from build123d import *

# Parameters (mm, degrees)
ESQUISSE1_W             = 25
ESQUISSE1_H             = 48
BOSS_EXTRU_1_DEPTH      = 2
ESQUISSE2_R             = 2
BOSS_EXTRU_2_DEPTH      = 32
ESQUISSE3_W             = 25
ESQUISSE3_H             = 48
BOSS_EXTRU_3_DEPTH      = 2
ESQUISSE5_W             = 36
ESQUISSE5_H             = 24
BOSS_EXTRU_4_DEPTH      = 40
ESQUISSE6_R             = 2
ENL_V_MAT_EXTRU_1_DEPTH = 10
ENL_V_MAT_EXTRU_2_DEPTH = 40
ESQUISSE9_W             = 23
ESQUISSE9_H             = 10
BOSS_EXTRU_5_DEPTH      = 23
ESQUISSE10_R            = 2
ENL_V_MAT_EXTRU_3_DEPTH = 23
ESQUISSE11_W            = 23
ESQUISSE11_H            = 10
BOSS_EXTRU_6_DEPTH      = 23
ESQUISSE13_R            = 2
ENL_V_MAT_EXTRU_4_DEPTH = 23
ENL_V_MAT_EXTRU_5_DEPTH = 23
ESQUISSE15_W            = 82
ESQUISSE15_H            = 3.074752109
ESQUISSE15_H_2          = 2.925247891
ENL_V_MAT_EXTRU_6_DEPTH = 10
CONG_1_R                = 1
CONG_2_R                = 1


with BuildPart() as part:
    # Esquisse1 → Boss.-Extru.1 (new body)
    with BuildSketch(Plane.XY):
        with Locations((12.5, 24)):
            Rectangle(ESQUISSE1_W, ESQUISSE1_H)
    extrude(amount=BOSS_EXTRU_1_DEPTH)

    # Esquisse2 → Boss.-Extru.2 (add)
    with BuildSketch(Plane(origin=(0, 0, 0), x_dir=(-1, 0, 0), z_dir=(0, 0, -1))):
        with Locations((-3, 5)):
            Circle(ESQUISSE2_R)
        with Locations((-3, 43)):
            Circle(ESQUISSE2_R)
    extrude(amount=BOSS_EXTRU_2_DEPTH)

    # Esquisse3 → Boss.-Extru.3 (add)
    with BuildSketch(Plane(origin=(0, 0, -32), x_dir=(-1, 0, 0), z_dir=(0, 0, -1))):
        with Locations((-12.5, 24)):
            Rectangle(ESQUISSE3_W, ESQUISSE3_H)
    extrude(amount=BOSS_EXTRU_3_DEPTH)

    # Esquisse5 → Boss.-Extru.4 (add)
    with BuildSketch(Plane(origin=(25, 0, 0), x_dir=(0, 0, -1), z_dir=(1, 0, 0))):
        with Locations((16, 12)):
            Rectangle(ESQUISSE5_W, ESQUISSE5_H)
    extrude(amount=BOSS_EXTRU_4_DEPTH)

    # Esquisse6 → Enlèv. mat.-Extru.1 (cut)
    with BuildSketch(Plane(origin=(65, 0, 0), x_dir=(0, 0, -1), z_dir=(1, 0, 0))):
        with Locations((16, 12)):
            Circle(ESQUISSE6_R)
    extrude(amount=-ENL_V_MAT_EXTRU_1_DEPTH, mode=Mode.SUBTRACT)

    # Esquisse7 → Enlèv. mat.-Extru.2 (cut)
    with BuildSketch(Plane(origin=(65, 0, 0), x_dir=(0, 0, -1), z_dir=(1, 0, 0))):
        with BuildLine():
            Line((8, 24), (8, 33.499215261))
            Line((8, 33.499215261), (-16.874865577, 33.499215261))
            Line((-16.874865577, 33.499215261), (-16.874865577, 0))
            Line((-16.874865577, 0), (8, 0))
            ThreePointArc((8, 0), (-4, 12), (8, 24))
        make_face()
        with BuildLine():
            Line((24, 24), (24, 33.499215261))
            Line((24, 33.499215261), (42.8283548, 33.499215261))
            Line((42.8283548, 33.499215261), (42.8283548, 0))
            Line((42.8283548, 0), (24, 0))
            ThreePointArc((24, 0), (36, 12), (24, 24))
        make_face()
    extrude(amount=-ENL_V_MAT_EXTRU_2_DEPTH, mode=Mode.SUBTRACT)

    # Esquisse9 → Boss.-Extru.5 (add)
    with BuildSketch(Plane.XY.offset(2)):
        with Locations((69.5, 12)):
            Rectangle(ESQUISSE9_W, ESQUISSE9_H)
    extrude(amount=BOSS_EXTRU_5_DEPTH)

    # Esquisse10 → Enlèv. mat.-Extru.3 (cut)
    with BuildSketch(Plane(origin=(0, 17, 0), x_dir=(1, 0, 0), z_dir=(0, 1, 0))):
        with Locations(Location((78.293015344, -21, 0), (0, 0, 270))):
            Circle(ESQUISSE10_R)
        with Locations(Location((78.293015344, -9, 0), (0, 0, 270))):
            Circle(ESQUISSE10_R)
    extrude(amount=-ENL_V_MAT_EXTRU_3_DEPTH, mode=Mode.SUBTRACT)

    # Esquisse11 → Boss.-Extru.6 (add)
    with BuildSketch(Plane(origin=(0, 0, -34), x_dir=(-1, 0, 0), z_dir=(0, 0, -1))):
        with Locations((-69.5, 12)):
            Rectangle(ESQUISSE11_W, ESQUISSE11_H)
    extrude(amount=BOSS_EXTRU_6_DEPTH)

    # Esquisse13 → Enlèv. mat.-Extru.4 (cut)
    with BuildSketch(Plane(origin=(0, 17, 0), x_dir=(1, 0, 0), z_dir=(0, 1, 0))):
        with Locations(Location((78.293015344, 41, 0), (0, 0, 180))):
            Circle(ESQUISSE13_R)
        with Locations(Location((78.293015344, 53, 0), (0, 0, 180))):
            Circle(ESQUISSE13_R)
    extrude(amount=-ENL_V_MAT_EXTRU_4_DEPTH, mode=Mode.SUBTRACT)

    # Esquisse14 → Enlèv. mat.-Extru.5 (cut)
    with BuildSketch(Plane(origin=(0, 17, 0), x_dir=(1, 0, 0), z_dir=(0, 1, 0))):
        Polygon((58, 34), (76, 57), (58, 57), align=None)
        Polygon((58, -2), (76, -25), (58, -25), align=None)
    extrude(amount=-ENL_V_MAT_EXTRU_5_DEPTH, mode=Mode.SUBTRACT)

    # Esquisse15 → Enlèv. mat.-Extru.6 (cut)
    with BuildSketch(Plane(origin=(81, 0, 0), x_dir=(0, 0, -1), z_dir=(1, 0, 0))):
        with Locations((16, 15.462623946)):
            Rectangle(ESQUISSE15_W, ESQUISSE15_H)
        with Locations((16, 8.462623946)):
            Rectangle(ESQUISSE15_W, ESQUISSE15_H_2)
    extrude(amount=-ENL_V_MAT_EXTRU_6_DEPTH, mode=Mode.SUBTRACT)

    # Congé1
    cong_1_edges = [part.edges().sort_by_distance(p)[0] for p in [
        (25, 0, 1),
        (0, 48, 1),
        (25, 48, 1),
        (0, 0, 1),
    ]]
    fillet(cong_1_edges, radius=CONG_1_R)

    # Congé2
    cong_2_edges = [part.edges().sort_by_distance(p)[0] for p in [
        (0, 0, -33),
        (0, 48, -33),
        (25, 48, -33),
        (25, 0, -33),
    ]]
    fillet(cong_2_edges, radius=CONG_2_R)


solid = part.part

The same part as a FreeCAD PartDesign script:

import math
import FreeCAD as App
import Part
import Sketcher
from FreeCAD import Vector
Q = App.Units.Quantity


def edges_at(feature, points):
    """Names of the edges that pass closest to the given points."""
    edges = feature.Shape.Edges
    near = lambda p: min(range(len(edges)), key=lambda i: edges[i].distToShape(Part.Vertex(*p))[0])
    return sorted({f"Edge{near(p) + 1}" for p in points})

doc = App.newDocument("Part")
body = doc.addObject("PartDesign::Body", "Body")

# Sketch on XY plane
sketch1 = body.newObject("Sketcher::SketchObject", "Sketch")
sketch1.AttachmentSupport = (doc.getObject("XY_Plane"), [""])
sketch1.MapMode = "FlatFace"
sketch1.addGeometry([
    Part.LineSegment(Vector(0, 48, 0), Vector(0, 0, 0)),
    Part.LineSegment(Vector(0, 0, 0), Vector(25, 0, 0)),
    Part.LineSegment(Vector(25, 0, 0), Vector(25, 48, 0)),
    Part.LineSegment(Vector(25, 48, 0), Vector(0, 48, 0)),
], False)
sketch1.addConstraint([
    Sketcher.Constraint("Coincident", 0, 2, 1, 1),
    Sketcher.Constraint("Coincident", 1, 2, 2, 1),
    Sketcher.Constraint("Coincident", 2, 2, 3, 1),
    Sketcher.Constraint("Coincident", 3, 2, 0, 1),
    Sketcher.Constraint("Vertical", 0),
    Sketcher.Constraint("Horizontal", 1),
    Sketcher.Constraint("Vertical", 2),
    Sketcher.Constraint("Horizontal", 3),
    Sketcher.Constraint("Coincident", 0, 2, -1, 1),
    Sketcher.Constraint("DistanceX", 1, 1, 1, 2, Q("25 mm")),
    Sketcher.Constraint("DistanceY", 0, 2, 0, 1, Q("48 mm")),
])
pad1 = body.newObject("PartDesign::Pad", "Pad")
pad1.Profile = sketch1
pad1.Length = 2

# Sketch on XY plane
sketch2 = body.newObject("Sketcher::SketchObject", "Sketch001")
sketch2.AttachmentSupport = (doc.getObject("XY_Plane"), [""])
sketch2.MapMode = "FlatFace"
sketch2.addGeometry([
    Part.Circle(Vector(3, 5, 0), Vector(0, 0, 1), 2),
    Part.Circle(Vector(3, 43, 0), Vector(0, 0, 1), 2),
], False)
sketch2.addConstraint([
    Sketcher.Constraint("Equal", 0, 1),
    Sketcher.Constraint("Vertical", 0, 3, 1, 3),
    Sketcher.Constraint("Diameter", 0, Q("4 mm")),
    Sketcher.Constraint("DistanceX", -1, 1, 0, 3, Q("3 mm")),
    Sketcher.Constraint("DistanceY", -1, 1, 0, 3, Q("5 mm")),
    Sketcher.Constraint("DistanceY", -1, 1, 1, 3, Q("43 mm")),
])
pad2 = body.newObject("PartDesign::Pad", "Pad001")
pad2.Profile = sketch2
pad2.Length = 32
pad2.Reversed = True

# Sketch on XY plane
sketch3 = body.newObject("Sketcher::SketchObject", "Sketch002")
sketch3.AttachmentSupport = (doc.getObject("XY_Plane"), [""])
sketch3.MapMode = "FlatFace"
sketch3.AttachmentOffset = App.Placement(Vector(0, 0, -32), App.Rotation())
sketch3.addGeometry([
    Part.LineSegment(Vector(25, 48, 0), Vector(25, 0, 0)),
    Part.LineSegment(Vector(25, 0, 0), Vector(0, 0, 0)),
    Part.LineSegment(Vector(0, 0, 0), Vector(0, 48, 0)),
    Part.LineSegment(Vector(0, 48, 0), Vector(25, 48, 0)),
], False)
sketch3.addConstraint([
    Sketcher.Constraint("Coincident", 0, 2, 1, 1),
    Sketcher.Constraint("Coincident", 1, 2, 2, 1),
    Sketcher.Constraint("Coincident", 2, 2, 3, 1),
    Sketcher.Constraint("Coincident", 3, 2, 0, 1),
    Sketcher.Constraint("Vertical", 0),
    Sketcher.Constraint("Horizontal", 1),
    Sketcher.Constraint("Vertical", 2),
    Sketcher.Constraint("Horizontal", 3),
    Sketcher.Constraint("Coincident", 1, 2, -1, 1),
    Sketcher.Constraint("DistanceX", 1, 2, 1, 1, Q("25 mm")),
    Sketcher.Constraint("DistanceY", 0, 2, 0, 1, Q("48 mm")),
])
pad3 = body.newObject("PartDesign::Pad", "Pad002")
pad3.Profile = sketch3
pad3.Length = 2
pad3.Reversed = True

# Sketch on YZ plane
sketch4 = body.newObject("Sketcher::SketchObject", "Sketch003")
sketch4.AttachmentSupport = (doc.getObject("YZ_Plane"), [""])
sketch4.MapMode = "FlatFace"
sketch4.AttachmentOffset = App.Placement(Vector(0, 0, 25), App.Rotation())
sketch4.addGeometry([
    Part.LineSegment(Vector(24, 2, 0), Vector(0, 2, 0)),
    Part.LineSegment(Vector(0, 2, 0), Vector(0, -34, 0)),
    Part.LineSegment(Vector(0, -34, 0), Vector(24, -34, 0)),
    Part.LineSegment(Vector(24, -34, 0), Vector(24, 2, 0)),
], False)
sketch4.addConstraint([
    Sketcher.Constraint("Coincident", 0, 2, 1, 1),
    Sketcher.Constraint("Coincident", 1, 2, 2, 1),
    Sketcher.Constraint("Coincident", 2, 2, 3, 1),
    Sketcher.Constraint("Coincident", 3, 2, 0, 1),
    Sketcher.Constraint("Horizontal", 0),
    Sketcher.Constraint("Vertical", 1),
    Sketcher.Constraint("Horizontal", 2),
    Sketcher.Constraint("Vertical", 3),
    Sketcher.Constraint("PointOnObject", 0, 2, -2),
    Sketcher.Constraint("DistanceX", 0, 2, 0, 1, Q("24 mm")),
    Sketcher.Constraint("DistanceY", 1, 2, 1, 1, Q("36 mm")),
    Sketcher.Constraint("DistanceY", -1, 1, 0, 2, Q("2 mm")),
])
pad4 = body.newObject("PartDesign::Pad", "Pad003")
pad4.Profile = sketch4
pad4.Length = 40

# Sketch on YZ plane
sketch5 = body.newObject("Sketcher::SketchObject", "Sketch004")
sketch5.AttachmentSupport = (doc.getObject("YZ_Plane"), [""])
sketch5.MapMode = "FlatFace"
sketch5.AttachmentOffset = App.Placement(Vector(0, 0, 65), App.Rotation())
sketch5.addGeometry(Part.Circle(Vector(12, -16, 0), Vector(0, 0, 1), 2), False)
sketch5.addConstraint([
    Sketcher.Constraint("Diameter", 0, Q("4 mm")),
    Sketcher.Constraint("DistanceX", -1, 1, 0, 3, Q("12 mm")),
    Sketcher.Constraint("DistanceY", 0, 3, -1, 1, Q("16 mm")),
])
pocket1 = body.newObject("PartDesign::Pocket", "Pocket")
pocket1.Profile = sketch5
pocket1.Length = 10

# Sketch on YZ plane
sketch6 = body.newObject("Sketcher::SketchObject", "Sketch005")
sketch6.AttachmentSupport = (doc.getObject("YZ_Plane"), [""])
sketch6.MapMode = "FlatFace"
sketch6.AttachmentOffset = App.Placement(Vector(0, 0, 65), App.Rotation())
sketch6.addGeometry([
    Part.LineSegment(Vector(24, -8, 0), Vector(33, -8, 0)),  # 0
    Part.LineSegment(Vector(33, -8, 0), Vector(33, 17, 0)),  # 1
    Part.LineSegment(Vector(33, 17, 0), Vector(0, 17, 0)),  # 2
    Part.LineSegment(Vector(0, 17, 0), Vector(0, -8, 0)),  # 3
    Part.ArcOfCircle(Part.Circle(Vector(12, -8, 0), Vector(0, 0, 1), 12), math.radians(0), math.radians(180)),  # 4
    Part.LineSegment(Vector(33, -24, 0), Vector(24, -24, 0)),  # 5
    Part.ArcOfCircle(Part.Circle(Vector(12, -24, 0), Vector(0, 0, 1), 12), math.radians(180), math.radians(360)),  # 6
    Part.LineSegment(Vector(0, -24, 0), Vector(0, -43, 0)),  # 7
    Part.LineSegment(Vector(0, -43, 0), Vector(33, -43, 0)),  # 8
    Part.LineSegment(Vector(33, -43, 0), Vector(33, -24, 0)),  # 9
], False)
sketch6.addConstraint([
    Sketcher.Constraint("Coincident", 0, 2, 1, 1),
    Sketcher.Constraint("Coincident", 1, 2, 2, 1),
    Sketcher.Constraint("Coincident", 2, 2, 3, 1),
    Sketcher.Constraint("Tangent", 3, 2, 4, 2),
    Sketcher.Constraint("Coincident", 4, 1, 0, 1),
    Sketcher.Constraint("Coincident", 5, 2, 6, 2),
    Sketcher.Constraint("Tangent", 6, 1, 7, 1),
    Sketcher.Constraint("Coincident", 7, 2, 8, 1),
    Sketcher.Constraint("Coincident", 8, 2, 9, 1),
    Sketcher.Constraint("Coincident", 9, 2, 5, 1),
    Sketcher.Constraint("Horizontal", 0),
    Sketcher.Constraint("Vertical", 1),
    Sketcher.Constraint("Horizontal", 2),
    Sketcher.Constraint("Vertical", 3),
    Sketcher.Constraint("Horizontal", 5),
    Sketcher.Constraint("Vertical", 7),
    Sketcher.Constraint("Horizontal", 8),
    Sketcher.Constraint("Vertical", 9),
    Sketcher.Constraint("Equal", 4, 6),
    Sketcher.Constraint("PointOnObject", 2, 2, -2),
    Sketcher.Constraint("PointOnObject", 6, 1, -2),
    Sketcher.Constraint("Horizontal", 4, 3, 0, 2),
    Sketcher.Constraint("Horizontal", 6, 3, 5, 2),
    Sketcher.Constraint("Vertical", 1, 2, 8, 2),
    Sketcher.Constraint("Radius", 4, Q("12 mm")),
    Sketcher.Constraint("DistanceY", 4, 3, -1, 1, Q("8 mm")),
    Sketcher.Constraint("DistanceY", 6, 3, -1, 1, Q("24 mm")),
    Sketcher.Constraint("DistanceX", 0, 1, 0, 2, Q("9.499215 mm")),
    Sketcher.Constraint("DistanceY", 1, 1, 1, 2, Q("24.874866 mm")),
    Sketcher.Constraint("DistanceY", 7, 2, 7, 1, Q("18.828355 mm")),
])
pocket2 = body.newObject("PartDesign::Pocket", "Pocket001")
pocket2.Profile = sketch6
pocket2.Length = 40

# Sketch on XY plane
sketch7 = body.newObject("Sketcher::SketchObject", "Sketch006")
sketch7.AttachmentSupport = (doc.getObject("XY_Plane"), [""])
sketch7.MapMode = "FlatFace"
sketch7.AttachmentOffset = App.Placement(Vector(0, 0, 2), App.Rotation())
sketch7.addGeometry([
    Part.LineSegment(Vector(58, 17, 0), Vector(58, 7, 0)),
    Part.LineSegment(Vector(58, 7, 0), Vector(81, 7, 0)),
    Part.LineSegment(Vector(81, 7, 0), Vector(81, 17, 0)),
    Part.LineSegment(Vector(81, 17, 0), Vector(58, 17, 0)),
], False)
sketch7.addConstraint([
    Sketcher.Constraint("Coincident", 0, 2, 1, 1),
    Sketcher.Constraint("Coincident", 1, 2, 2, 1),
    Sketcher.Constraint("Coincident", 2, 2, 3, 1),
    Sketcher.Constraint("Coincident", 3, 2, 0, 1),
    Sketcher.Constraint("Vertical", 0),
    Sketcher.Constraint("Horizontal", 1),
    Sketcher.Constraint("Vertical", 2),
    Sketcher.Constraint("Horizontal", 3),
    Sketcher.Constraint("DistanceX", 1, 1, 1, 2, Q("23 mm")),
    Sketcher.Constraint("DistanceY", 0, 2, 0, 1, Q("10 mm")),
    Sketcher.Constraint("DistanceX", -1, 1, 0, 2, Q("58 mm")),
    Sketcher.Constraint("DistanceY", -1, 1, 0, 2, Q("7 mm")),
])
pad5 = body.newObject("PartDesign::Pad", "Pad004")
pad5.Profile = sketch7
pad5.Length = 23

# Sketch on XZ plane
sketch8 = body.newObject("Sketcher::SketchObject", "Sketch007")
sketch8.AttachmentSupport = (doc.getObject("XZ_Plane"), [""])
sketch8.MapMode = "FlatFace"
sketch8.AttachmentOffset = App.Placement(Vector(0, 0, -17), App.Rotation())
sketch8.addGeometry([
    Part.Circle(Vector(78.3, 21, 0), Vector(0, 0, 1), 2),
    Part.Circle(Vector(78.3, 9, 0), Vector(0, 0, 1), 2),
], False)
sketch8.addConstraint([
    Sketcher.Constraint("Equal", 0, 1),
    Sketcher.Constraint("Vertical", 0, 3, 1, 3),
    Sketcher.Constraint("Diameter", 0, Q("4 mm")),
    Sketcher.Constraint("DistanceY", -1, 1, 0, 3, Q("21 mm")),
    Sketcher.Constraint("DistanceY", -1, 1, 1, 3, Q("9 mm")),
    Sketcher.Constraint("DistanceX", -1, 1, 0, 3, Q("78.293015 mm")),
])
pocket3 = body.newObject("PartDesign::Pocket", "Pocket002")
pocket3.Profile = sketch8
pocket3.Length = 23
pocket3.Reversed = True

# Sketch on XY plane
sketch9 = body.newObject("Sketcher::SketchObject", "Sketch008")
sketch9.AttachmentSupport = (doc.getObject("XY_Plane"), [""])
sketch9.MapMode = "FlatFace"
sketch9.AttachmentOffset = App.Placement(Vector(0, 0, -34), App.Rotation())
sketch9.addGeometry([
    Part.LineSegment(Vector(81, 17, 0), Vector(81, 7, 0)),
    Part.LineSegment(Vector(81, 7, 0), Vector(58, 7, 0)),
    Part.LineSegment(Vector(58, 7, 0), Vector(58, 17, 0)),
    Part.LineSegment(Vector(58, 17, 0), Vector(81, 17, 0)),
], False)
sketch9.addConstraint([
    Sketcher.Constraint("Coincident", 0, 2, 1, 1),
    Sketcher.Constraint("Coincident", 1, 2, 2, 1),
    Sketcher.Constraint("Coincident", 2, 2, 3, 1),
    Sketcher.Constraint("Coincident", 3, 2, 0, 1),
    Sketcher.Constraint("Vertical", 0),
    Sketcher.Constraint("Horizontal", 1),
    Sketcher.Constraint("Vertical", 2),
    Sketcher.Constraint("Horizontal", 3),
    Sketcher.Constraint("DistanceX", 1, 2, 1, 1, Q("23 mm")),
    Sketcher.Constraint("DistanceY", 0, 2, 0, 1, Q("10 mm")),
    Sketcher.Constraint("DistanceX", -1, 1, 0, 2, Q("81 mm")),
    Sketcher.Constraint("DistanceY", -1, 1, 0, 2, Q("7 mm")),
])
pad6 = body.newObject("PartDesign::Pad", "Pad005")
pad6.Profile = sketch9
pad6.Length = 23
pad6.Reversed = True

# Sketch on XZ plane
sketch10 = body.newObject("Sketcher::SketchObject", "Sketch009")
sketch10.AttachmentSupport = (doc.getObject("XZ_Plane"), [""])
sketch10.MapMode = "FlatFace"
sketch10.AttachmentOffset = App.Placement(Vector(0, 0, -17), App.Rotation())
sketch10.addGeometry([
    Part.Circle(Vector(78.3, -41, 0), Vector(0, 0, 1), 2),
    Part.Circle(Vector(78.3, -53, 0), Vector(0, 0, 1), 2),
], False)
sketch10.addConstraint([
    Sketcher.Constraint("Equal", 0, 1),
    Sketcher.Constraint("Vertical", 0, 3, 1, 3),
    Sketcher.Constraint("Diameter", 0, Q("4 mm")),
    Sketcher.Constraint("DistanceY", 0, 3, -1, 1, Q("41 mm")),
    Sketcher.Constraint("DistanceY", 1, 3, -1, 1, Q("53 mm")),
    Sketcher.Constraint("DistanceX", -1, 1, 0, 3, Q("78.293015 mm")),
])
pocket4 = body.newObject("PartDesign::Pocket", "Pocket003")
pocket4.Profile = sketch10
pocket4.Length = 23
pocket4.Reversed = True

# Sketch on XZ plane
sketch11 = body.newObject("Sketcher::SketchObject", "Sketch010")
sketch11.AttachmentSupport = (doc.getObject("XZ_Plane"), [""])
sketch11.MapMode = "FlatFace"
sketch11.AttachmentOffset = App.Placement(Vector(0, 0, -17), App.Rotation())
sketch11.addGeometry([
    Part.LineSegment(Vector(58, -34, 0), Vector(76, -57, 0)),  # 0
    Part.LineSegment(Vector(76, -57, 0), Vector(58, -57, 0)),  # 1
    Part.LineSegment(Vector(58, -57, 0), Vector(58, -34, 0)),  # 2
    Part.LineSegment(Vector(76, 25, 0), Vector(58, 2, 0)),  # 3
    Part.LineSegment(Vector(58, 2, 0), Vector(58, 25, 0)),  # 4
    Part.LineSegment(Vector(58, 25, 0), Vector(76, 25, 0)),  # 5
], False)
sketch11.addConstraint([
    Sketcher.Constraint("Coincident", 0, 2, 1, 1),
    Sketcher.Constraint("Coincident", 1, 2, 2, 1),
    Sketcher.Constraint("Coincident", 2, 2, 0, 1),
    Sketcher.Constraint("Coincident", 3, 2, 4, 1),
    Sketcher.Constraint("Coincident", 4, 2, 5, 1),
    Sketcher.Constraint("Coincident", 5, 2, 3, 1),
    Sketcher.Constraint("Horizontal", 1),
    Sketcher.Constraint("Vertical", 2),
    Sketcher.Constraint("Vertical", 4),
    Sketcher.Constraint("Horizontal", 5),
    Sketcher.Constraint("Vertical", 2, 2, 3, 2),
    Sketcher.Constraint("Vertical", 0, 2, 5, 2),
    Sketcher.Constraint("Equal", 2, 4),
    Sketcher.Constraint("DistanceX", 1, 2, 1, 1, Q("18 mm")),
    Sketcher.Constraint("DistanceY", 2, 1, 2, 2, Q("23 mm")),
    Sketcher.Constraint("DistanceX", -1, 1, 0, 2, Q("76 mm")),
    Sketcher.Constraint("DistanceY", 0, 2, -1, 1, Q("57 mm")),
    Sketcher.Constraint("DistanceY", -1, 1, 3, 2, Q("2 mm")),
])
pocket5 = body.newObject("PartDesign::Pocket", "Pocket004")
pocket5.Profile = sketch11
pocket5.Length = 23
pocket5.Reversed = True

# Sketch on YZ plane
sketch12 = body.newObject("Sketcher::SketchObject", "Sketch011")
sketch12.AttachmentSupport = (doc.getObject("YZ_Plane"), [""])
sketch12.MapMode = "FlatFace"
sketch12.AttachmentOffset = App.Placement(Vector(0, 0, 81), App.Rotation())
sketch12.addGeometry([
    Part.LineSegment(Vector(17, 25, 0), Vector(13.9, 25, 0)),  # 0
    Part.LineSegment(Vector(13.9, 25, 0), Vector(13.9, -57, 0)),  # 1
    Part.LineSegment(Vector(13.9, -57, 0), Vector(17, -57, 0)),  # 2
    Part.LineSegment(Vector(17, -57, 0), Vector(17, 25, 0)),  # 3
    Part.LineSegment(Vector(9.9, 25, 0), Vector(7, 25, 0)),  # 4
    Part.LineSegment(Vector(7, 25, 0), Vector(7, -57, 0)),  # 5
    Part.LineSegment(Vector(7, -57, 0), Vector(9.9, -57, 0)),  # 6
    Part.LineSegment(Vector(9.9, -57, 0), Vector(9.9, 25, 0)),  # 7
], False)
sketch12.addConstraint([
    Sketcher.Constraint("Coincident", 0, 2, 1, 1),
    Sketcher.Constraint("Coincident", 1, 2, 2, 1),
    Sketcher.Constraint("Coincident", 2, 2, 3, 1),
    Sketcher.Constraint("Coincident", 3, 2, 0, 1),
    Sketcher.Constraint("Coincident", 4, 2, 5, 1),
    Sketcher.Constraint("Coincident", 5, 2, 6, 1),
    Sketcher.Constraint("Coincident", 6, 2, 7, 1),
    Sketcher.Constraint("Coincident", 7, 2, 4, 1),
    Sketcher.Constraint("Horizontal", 0),
    Sketcher.Constraint("Vertical", 1),
    Sketcher.Constraint("Horizontal", 2),
    Sketcher.Constraint("Vertical", 3),
    Sketcher.Constraint("Horizontal", 4),
    Sketcher.Constraint("Vertical", 5),
    Sketcher.Constraint("Horizontal", 6),
    Sketcher.Constraint("Vertical", 7),
    Sketcher.Constraint("Horizontal", 3, 2, 4, 2),
    Sketcher.Constraint("Horizontal", 2, 2, 5, 2),
    Sketcher.Constraint("DistanceY", 1, 2, 1, 1, Q("82 mm")),
    Sketcher.Constraint("DistanceY", -1, 1, 0, 2, Q("25 mm")),
    Sketcher.Constraint("DistanceX", -1, 1, 2, 2, Q("17 mm")),
    Sketcher.Constraint("DistanceX", -1, 1, 4, 2, Q("7 mm")),
    Sketcher.Constraint("DistanceX", 6, 2, 1, 2, Q("4 mm")),
    Sketcher.Constraint("DistanceX", 0, 2, 0, 1, Q("3.074752 mm")),
])
pocket6 = body.newObject("PartDesign::Pocket", "Pocket005")
pocket6.Profile = sketch12
pocket6.Length = 10
doc.recompute()

fillet = body.newObject("PartDesign::Fillet", "Fillet")
fillet.Base = (pocket6, edges_at(pocket6, [
    (25, 0, 1),
    (0, 48, 1),
    (25, 48, 1),
    (0, 0, 1),
]))
fillet.Radius = 1
doc.recompute()

fillet2 = body.newObject("PartDesign::Fillet", "Fillet001")
fillet2.Base = (fillet, edges_at(fillet, [
    (0, 0, -33),
    (0, 48, -33),
    (25, 48, -33),
    (25, 0, -33),
]))
fillet2.Radius = 1

doc.recompute()
